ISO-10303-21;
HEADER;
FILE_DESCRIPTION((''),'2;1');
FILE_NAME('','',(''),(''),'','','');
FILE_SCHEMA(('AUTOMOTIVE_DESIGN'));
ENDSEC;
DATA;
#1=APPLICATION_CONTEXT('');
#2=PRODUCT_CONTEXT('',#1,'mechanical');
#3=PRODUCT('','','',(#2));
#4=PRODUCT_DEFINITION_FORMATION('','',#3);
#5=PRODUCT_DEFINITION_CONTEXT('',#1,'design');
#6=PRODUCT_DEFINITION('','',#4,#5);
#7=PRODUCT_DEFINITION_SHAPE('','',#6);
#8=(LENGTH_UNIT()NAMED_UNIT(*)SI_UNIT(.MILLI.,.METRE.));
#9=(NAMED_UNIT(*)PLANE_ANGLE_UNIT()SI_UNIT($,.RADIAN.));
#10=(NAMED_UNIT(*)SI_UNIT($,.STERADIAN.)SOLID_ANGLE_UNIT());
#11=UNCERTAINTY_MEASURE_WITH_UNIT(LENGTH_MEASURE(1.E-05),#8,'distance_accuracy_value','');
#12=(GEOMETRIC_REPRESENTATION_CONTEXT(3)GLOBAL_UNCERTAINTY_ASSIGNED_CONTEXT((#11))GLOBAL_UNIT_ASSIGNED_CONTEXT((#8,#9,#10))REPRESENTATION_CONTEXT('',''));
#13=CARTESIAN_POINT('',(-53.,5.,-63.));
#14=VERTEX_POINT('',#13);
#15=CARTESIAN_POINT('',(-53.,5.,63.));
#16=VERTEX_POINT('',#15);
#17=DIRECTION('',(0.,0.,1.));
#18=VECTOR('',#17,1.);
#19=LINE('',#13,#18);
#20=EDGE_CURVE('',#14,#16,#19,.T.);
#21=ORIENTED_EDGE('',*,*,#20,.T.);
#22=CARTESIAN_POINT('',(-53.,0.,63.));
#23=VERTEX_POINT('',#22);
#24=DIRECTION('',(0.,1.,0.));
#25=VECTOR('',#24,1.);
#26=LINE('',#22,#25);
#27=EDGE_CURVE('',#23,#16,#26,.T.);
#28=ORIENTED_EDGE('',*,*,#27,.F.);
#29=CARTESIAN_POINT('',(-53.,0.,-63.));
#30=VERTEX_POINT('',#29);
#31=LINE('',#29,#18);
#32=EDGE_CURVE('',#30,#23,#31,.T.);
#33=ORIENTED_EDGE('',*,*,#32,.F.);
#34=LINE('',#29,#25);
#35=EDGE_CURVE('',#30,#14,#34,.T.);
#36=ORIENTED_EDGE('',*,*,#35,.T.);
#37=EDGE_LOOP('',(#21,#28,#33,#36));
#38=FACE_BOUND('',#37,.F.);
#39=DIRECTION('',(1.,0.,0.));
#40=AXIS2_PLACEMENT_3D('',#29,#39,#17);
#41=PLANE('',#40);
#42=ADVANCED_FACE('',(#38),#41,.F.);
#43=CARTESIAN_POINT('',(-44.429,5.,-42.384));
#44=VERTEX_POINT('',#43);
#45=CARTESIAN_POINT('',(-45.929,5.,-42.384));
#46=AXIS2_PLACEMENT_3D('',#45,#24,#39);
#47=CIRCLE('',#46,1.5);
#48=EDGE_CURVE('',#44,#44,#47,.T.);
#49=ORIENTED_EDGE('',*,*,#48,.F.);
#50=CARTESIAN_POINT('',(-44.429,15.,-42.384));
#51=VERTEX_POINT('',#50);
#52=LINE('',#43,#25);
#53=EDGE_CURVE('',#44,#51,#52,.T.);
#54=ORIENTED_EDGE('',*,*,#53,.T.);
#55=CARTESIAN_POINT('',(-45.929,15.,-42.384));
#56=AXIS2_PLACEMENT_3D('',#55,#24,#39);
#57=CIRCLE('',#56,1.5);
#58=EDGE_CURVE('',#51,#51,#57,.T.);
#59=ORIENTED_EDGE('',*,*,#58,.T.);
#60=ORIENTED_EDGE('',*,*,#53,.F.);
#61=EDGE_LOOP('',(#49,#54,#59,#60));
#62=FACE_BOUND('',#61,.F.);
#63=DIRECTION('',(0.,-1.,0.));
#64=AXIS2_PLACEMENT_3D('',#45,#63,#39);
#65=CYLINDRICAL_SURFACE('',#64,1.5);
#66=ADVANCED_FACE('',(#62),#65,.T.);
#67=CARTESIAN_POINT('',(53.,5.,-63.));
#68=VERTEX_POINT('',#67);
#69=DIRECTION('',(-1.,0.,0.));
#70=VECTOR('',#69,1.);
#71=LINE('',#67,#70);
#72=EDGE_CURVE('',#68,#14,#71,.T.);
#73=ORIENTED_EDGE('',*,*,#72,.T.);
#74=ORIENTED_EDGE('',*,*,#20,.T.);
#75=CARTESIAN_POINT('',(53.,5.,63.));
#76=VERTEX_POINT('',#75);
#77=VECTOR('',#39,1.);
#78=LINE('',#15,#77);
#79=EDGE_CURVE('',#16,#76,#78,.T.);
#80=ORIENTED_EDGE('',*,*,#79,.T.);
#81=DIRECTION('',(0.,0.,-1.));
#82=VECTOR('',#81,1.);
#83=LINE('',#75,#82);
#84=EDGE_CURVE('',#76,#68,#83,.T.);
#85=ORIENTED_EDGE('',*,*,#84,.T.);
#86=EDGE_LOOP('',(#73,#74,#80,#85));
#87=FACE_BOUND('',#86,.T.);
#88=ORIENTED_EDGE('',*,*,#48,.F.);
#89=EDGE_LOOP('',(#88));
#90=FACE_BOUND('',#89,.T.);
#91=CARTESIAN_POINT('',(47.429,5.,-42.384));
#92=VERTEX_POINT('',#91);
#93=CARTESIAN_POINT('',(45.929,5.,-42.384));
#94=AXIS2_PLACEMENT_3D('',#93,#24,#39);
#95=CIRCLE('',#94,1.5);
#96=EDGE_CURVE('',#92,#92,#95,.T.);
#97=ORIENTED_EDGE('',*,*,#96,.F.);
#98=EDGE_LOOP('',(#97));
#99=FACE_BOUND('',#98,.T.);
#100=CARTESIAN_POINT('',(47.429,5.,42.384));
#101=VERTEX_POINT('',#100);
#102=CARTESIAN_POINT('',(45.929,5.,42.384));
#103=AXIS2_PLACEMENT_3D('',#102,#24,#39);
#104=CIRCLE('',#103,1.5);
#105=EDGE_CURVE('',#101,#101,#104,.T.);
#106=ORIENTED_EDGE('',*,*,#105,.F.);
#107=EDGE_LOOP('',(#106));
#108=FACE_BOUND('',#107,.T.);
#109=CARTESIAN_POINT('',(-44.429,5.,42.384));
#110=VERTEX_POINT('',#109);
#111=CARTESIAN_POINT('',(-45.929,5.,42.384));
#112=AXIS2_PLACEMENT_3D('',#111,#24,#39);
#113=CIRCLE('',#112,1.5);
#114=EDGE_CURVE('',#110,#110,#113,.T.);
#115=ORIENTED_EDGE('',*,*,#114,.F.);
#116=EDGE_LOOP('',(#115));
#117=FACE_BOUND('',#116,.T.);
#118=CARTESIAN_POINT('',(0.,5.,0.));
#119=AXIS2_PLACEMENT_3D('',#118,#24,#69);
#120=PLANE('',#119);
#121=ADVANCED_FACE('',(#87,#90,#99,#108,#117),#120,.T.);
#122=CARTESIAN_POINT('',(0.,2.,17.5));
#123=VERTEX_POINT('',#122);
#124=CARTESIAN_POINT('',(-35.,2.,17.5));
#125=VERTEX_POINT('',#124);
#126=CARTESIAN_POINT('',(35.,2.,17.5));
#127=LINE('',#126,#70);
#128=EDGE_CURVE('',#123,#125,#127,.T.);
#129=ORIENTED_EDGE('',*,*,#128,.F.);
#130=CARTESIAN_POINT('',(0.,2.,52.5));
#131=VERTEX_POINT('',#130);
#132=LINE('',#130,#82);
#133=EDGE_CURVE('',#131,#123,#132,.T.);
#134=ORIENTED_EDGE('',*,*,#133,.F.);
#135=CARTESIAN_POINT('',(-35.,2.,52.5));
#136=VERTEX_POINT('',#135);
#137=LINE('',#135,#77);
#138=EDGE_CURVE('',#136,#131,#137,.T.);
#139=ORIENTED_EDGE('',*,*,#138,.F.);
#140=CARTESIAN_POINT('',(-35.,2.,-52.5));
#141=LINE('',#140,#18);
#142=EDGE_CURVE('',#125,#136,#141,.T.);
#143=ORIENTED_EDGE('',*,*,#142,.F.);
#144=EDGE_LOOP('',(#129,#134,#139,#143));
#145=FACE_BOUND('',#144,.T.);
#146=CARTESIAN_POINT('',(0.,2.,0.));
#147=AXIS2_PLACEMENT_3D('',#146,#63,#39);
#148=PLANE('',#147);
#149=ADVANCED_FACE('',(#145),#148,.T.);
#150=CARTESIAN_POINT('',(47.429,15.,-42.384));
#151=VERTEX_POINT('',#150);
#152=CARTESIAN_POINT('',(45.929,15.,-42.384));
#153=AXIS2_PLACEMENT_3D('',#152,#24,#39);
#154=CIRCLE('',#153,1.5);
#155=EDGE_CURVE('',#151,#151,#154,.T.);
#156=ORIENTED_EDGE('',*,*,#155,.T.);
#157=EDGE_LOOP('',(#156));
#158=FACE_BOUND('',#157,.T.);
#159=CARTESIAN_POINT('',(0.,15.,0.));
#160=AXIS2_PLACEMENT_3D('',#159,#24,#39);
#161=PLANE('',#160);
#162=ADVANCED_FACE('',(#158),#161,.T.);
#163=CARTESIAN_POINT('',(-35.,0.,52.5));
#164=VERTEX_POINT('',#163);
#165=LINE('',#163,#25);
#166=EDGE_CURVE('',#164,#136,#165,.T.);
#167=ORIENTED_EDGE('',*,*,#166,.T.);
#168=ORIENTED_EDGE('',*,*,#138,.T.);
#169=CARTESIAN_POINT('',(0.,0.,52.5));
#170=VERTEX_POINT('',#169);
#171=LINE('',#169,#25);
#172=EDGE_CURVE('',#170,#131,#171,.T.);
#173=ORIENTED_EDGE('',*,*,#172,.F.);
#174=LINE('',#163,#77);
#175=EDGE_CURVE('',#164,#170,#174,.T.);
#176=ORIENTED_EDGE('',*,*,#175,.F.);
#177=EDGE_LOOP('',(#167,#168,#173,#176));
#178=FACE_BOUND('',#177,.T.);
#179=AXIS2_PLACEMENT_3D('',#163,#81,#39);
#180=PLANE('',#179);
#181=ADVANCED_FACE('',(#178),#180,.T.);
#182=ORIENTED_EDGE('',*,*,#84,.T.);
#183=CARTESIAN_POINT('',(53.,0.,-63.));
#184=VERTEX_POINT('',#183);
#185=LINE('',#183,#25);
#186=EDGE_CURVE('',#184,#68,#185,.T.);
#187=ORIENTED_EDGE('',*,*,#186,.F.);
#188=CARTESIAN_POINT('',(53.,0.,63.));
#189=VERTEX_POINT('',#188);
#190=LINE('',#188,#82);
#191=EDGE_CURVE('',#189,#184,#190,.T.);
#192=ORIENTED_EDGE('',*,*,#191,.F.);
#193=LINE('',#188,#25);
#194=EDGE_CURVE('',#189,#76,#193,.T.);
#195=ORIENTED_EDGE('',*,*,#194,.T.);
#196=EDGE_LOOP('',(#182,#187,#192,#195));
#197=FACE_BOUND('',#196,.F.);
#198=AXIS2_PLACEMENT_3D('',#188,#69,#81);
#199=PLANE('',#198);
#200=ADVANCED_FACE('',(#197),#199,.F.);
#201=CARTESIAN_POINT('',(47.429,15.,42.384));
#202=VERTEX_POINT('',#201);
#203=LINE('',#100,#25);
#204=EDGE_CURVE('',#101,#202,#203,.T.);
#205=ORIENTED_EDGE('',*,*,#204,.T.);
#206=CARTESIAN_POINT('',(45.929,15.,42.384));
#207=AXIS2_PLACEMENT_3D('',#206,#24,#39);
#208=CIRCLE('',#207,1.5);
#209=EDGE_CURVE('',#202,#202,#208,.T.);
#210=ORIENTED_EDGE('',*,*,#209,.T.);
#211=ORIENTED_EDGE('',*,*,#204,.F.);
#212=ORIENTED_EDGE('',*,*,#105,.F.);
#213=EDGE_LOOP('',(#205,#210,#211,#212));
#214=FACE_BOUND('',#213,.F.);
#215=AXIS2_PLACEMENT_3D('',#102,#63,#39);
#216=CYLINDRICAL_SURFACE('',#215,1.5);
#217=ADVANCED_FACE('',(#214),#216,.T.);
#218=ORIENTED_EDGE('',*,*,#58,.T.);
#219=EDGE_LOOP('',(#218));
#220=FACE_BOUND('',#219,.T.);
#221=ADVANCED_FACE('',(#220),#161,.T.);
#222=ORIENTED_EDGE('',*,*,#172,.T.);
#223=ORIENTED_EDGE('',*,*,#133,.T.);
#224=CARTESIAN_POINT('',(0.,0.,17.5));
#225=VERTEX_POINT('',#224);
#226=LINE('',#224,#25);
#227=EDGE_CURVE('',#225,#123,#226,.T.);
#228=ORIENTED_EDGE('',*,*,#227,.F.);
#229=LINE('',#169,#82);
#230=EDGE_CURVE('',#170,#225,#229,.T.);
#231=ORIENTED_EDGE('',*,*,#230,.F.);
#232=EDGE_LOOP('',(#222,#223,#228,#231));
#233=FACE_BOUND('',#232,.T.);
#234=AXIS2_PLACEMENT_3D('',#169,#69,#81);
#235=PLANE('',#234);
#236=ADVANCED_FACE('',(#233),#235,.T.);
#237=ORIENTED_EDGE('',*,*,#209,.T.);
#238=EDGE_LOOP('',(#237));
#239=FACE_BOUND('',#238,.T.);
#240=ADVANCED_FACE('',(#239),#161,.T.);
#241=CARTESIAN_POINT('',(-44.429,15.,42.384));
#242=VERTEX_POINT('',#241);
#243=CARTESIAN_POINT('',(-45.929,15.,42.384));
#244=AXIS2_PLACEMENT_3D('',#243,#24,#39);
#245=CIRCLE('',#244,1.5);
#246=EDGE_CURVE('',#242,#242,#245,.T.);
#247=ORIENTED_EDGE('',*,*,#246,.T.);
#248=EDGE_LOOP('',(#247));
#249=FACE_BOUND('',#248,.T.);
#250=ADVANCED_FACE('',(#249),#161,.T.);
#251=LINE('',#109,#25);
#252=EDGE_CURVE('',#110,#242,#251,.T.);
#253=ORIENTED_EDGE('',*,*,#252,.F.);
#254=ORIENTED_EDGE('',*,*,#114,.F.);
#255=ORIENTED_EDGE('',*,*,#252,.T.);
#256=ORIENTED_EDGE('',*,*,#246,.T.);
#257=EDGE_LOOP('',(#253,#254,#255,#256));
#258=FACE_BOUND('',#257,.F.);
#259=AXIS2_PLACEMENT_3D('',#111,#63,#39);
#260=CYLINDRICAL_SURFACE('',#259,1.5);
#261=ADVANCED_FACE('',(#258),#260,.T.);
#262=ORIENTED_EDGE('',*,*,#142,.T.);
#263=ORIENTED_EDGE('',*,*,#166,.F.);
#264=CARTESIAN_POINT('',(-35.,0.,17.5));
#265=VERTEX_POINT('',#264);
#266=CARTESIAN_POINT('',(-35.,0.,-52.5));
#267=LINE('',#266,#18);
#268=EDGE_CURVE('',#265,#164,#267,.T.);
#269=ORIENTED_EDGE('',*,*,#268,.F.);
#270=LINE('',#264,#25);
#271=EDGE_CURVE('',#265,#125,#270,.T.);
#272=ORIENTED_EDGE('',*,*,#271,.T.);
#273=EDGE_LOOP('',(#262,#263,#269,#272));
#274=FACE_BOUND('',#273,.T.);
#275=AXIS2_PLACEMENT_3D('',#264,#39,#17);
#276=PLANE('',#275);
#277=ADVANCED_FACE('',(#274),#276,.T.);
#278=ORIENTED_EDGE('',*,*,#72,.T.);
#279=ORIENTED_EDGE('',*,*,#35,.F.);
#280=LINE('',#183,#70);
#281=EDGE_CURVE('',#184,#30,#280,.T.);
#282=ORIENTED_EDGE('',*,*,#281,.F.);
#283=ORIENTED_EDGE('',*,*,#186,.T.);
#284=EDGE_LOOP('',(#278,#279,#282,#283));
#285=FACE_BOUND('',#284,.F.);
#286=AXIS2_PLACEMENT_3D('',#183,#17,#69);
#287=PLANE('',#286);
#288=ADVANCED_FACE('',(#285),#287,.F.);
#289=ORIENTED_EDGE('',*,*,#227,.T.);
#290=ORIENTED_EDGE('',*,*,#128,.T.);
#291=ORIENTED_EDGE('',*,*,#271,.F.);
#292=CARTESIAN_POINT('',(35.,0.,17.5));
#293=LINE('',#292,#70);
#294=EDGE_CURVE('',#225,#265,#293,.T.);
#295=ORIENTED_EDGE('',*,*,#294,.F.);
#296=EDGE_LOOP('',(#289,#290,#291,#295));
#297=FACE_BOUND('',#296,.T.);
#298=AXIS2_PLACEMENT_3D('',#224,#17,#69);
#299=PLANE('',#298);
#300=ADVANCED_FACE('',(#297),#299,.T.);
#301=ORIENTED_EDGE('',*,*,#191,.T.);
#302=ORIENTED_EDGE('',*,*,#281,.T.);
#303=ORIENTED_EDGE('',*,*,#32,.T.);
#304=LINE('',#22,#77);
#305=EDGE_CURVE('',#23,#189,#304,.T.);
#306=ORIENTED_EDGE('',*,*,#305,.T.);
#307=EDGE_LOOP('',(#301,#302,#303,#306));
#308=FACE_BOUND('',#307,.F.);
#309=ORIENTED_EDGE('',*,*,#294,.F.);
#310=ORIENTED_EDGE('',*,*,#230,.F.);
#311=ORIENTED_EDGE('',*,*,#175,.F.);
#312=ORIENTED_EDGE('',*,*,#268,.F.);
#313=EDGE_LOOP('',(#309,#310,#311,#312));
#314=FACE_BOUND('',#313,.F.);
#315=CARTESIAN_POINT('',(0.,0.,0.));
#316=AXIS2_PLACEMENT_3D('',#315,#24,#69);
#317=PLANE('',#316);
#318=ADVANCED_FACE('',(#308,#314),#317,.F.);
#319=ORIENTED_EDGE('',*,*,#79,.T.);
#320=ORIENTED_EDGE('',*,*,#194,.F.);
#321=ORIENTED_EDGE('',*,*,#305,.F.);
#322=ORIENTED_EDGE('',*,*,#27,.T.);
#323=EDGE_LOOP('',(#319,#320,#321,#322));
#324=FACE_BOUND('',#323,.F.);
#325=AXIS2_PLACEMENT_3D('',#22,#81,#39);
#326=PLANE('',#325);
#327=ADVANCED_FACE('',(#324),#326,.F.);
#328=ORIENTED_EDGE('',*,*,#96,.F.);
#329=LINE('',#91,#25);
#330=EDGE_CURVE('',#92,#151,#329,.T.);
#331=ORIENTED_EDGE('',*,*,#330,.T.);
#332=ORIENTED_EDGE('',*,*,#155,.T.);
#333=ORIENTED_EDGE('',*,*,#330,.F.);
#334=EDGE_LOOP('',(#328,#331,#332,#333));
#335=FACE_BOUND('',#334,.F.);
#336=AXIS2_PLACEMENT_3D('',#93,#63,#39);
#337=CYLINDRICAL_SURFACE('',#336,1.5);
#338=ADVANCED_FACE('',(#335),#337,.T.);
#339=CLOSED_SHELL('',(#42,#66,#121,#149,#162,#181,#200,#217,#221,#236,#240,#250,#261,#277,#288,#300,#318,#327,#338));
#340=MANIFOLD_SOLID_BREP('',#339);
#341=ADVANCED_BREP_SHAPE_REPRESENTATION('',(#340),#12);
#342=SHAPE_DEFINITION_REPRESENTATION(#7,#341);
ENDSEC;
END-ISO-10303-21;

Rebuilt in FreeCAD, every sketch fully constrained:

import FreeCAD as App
import Part
import Sketcher
from FreeCAD import Vector


def add_polygon(sketch, points):
    """Adds a closed chain of lines whose ends are joined by coincident constraints."""
    first, n = sketch.GeometryCount, len(points)
    for a, b in zip(points, points[1:] + points[:1]):
        sketch.addGeometry(Part.LineSegment(App.Vector(*a, 0), App.Vector(*b, 0)), False)
    for i in range(n):
        sketch.addConstraint(Sketcher.Constraint("Coincident", first + i, 2, first + (i + 1) % n, 1))

doc = App.newDocument("Part")
body = doc.addObject("PartDesign::Body", "Body")

sketch1 = doc.addObject("Sketcher::SketchObject", "Sketch")
body.addObject(sketch1)
sketch1.AttachmentSupport = (doc.XZ_Plane, [""])
sketch1.MapMode = "FlatFace"
add_polygon(sketch1, [(-53, -63), (-53, 63), (53, 63), (53, -63)])
sketch1.addConstraint([
    Sketcher.Constraint("Vertical", 0),
    Sketcher.Constraint("Horizontal", 1),
    Sketcher.Constraint("Vertical", 2),
    Sketcher.Constraint("Horizontal", 3),
    Sketcher.Constraint("Symmetric", 0, 2, 2, 2, -1, 1),
    Sketcher.Constraint("DistanceX", 1, 1, 1, 2, 106.0),
    Sketcher.Constraint("DistanceY", 0, 1, 0, 2, 126.0),
])
pad1 = doc.addObject("PartDesign::Pad", "Pad")
body.addObject(pad1)
pad1.Profile = sketch1
pad1.Length = 5
pad1.Reversed = True

sketch2 = doc.addObject("Sketcher::SketchObject", "Sketch001")
body.addObject(sketch2)
sketch2.AttachmentSupport = (doc.XZ_Plane, [""])
sketch2.MapMode = "FlatFace"
sketch2.AttachmentOffset = App.Placement(Vector(0, 0, -5), App.Rotation())
sketch2.addGeometry([
    Part.Circle(Vector(-45.929, 42.384, 0), Vector(0, 0, 1), 1.5),
    Part.Circle(Vector(-45.929, -42.384, 0), Vector(0, 0, 1), 1.5),
    Part.Circle(Vector(45.929, 42.384, 0), Vector(0, 0, 1), 1.5),
    Part.Circle(Vector(45.929, -42.384, 0), Vector(0, 0, 1), 1.5),
], False)
sketch2.addConstraint([
    Sketcher.Constraint("Equal", 0, 1),
    Sketcher.Constraint("Equal", 1, 2),
    Sketcher.Constraint("Equal", 2, 3),
    Sketcher.Constraint("Symmetric", 1, 3, 2, 3, -1, 1),
    Sketcher.Constraint("Symmetric", 0, 3, 3, 3, -1, 1),
    Sketcher.Constraint("Symmetric", 0, 3, 2, 3, -2),
    Sketcher.Constraint("Diameter", 0, 3.0),
    Sketcher.Constraint("DistanceX", 0, 3, -1, 1, 45.929),
    Sketcher.Constraint("DistanceY", -1, 1, 0, 3, 42.384),
])
pad2 = doc.addObject("PartDesign::Pad", "Pad001")
body.addObject(pad2)
pad2.Profile = sketch2
pad2.Length = 10
pad2.Reversed = True

sketch3 = doc.addObject("Sketcher::SketchObject", "Sketch002")
body.addObject(sketch3)
sketch3.AttachmentSupport = (doc.XZ_Plane, [""])
sketch3.MapMode = "FlatFace"
add_polygon(sketch3, [(0, 52.5), (-35, 52.5), (-35, 17.5), (0, 17.5)])
sketch3.addConstraint([
    Sketcher.Constraint("Horizontal", 0),
    Sketcher.Constraint("Vertical", 1),
    Sketcher.Constraint("Horizontal", 2),
    Sketcher.Constraint("Vertical", 3),
    Sketcher.Constraint("PointOnObject", 2, 2, -2),
    Sketcher.Constraint("Equal", 2, 1),
    Sketcher.Constraint("DistanceX", 0, 2, 0, 1, 35.0),
    Sketcher.Constraint("DistanceY", -1, 1, 0, 2, 52.5),
])
pocket1 = doc.addObject("PartDesign::Pocket", "Pocket")
body.addObject(pocket1)
pocket1.Profile = sketch3
pocket1.Length = 2

doc.recompute()
